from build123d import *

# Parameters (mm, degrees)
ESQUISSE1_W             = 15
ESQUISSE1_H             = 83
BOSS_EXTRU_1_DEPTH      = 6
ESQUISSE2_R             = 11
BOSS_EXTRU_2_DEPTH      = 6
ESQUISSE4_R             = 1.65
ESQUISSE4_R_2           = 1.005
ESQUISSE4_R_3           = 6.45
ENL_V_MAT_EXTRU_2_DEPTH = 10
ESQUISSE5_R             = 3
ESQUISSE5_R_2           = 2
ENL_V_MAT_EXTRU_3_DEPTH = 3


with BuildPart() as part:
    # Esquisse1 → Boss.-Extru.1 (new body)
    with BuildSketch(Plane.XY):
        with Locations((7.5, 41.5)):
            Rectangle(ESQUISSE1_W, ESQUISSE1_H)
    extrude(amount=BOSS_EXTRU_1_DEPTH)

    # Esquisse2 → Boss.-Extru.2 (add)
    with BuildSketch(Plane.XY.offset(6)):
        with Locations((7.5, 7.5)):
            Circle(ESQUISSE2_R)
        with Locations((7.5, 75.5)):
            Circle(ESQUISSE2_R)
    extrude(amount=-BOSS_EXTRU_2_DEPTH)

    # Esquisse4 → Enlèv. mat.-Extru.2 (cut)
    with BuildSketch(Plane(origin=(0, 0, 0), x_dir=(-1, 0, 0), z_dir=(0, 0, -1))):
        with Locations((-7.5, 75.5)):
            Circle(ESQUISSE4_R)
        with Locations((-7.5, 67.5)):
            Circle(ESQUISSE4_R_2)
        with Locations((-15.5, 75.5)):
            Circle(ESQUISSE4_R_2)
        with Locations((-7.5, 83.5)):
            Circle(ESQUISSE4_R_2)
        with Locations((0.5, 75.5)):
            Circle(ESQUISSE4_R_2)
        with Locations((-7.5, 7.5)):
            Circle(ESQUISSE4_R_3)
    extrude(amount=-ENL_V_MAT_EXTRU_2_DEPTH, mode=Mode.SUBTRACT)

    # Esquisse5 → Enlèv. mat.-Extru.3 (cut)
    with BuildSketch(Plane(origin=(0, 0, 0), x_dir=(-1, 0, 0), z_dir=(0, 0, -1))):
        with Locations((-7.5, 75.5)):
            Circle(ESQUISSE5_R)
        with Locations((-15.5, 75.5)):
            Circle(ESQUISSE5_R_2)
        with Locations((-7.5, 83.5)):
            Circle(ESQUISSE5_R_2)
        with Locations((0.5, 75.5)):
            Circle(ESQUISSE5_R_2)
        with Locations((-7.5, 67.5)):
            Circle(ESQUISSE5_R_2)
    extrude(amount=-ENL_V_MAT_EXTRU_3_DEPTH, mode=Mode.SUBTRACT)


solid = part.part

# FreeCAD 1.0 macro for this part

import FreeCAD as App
import Part
import Sketcher

V = App.Vector

doc = App.newDocument("Part")
body = doc.addObject("PartDesign::Body", "Body")

sketch1 = body.newObject("Sketcher::SketchObject", "Sketch")
sketch1.AttachmentSupport = (doc.getObject("XY_Plane"), [""])
sketch1.MapMode = "FlatFace"
sketch1.addGeometry([
    Part.LineSegment(V(0, 83, 0), V(0, 0, 0)),
    Part.LineSegment(V(0, 0, 0), V(15, 0, 0)),
    Part.LineSegment(V(15, 0, 0), V(15, 83, 0)),
    Part.LineSegment(V(15, 83, 0), V(0, 83, 0)),
], False)
sketch1.addConstraint([
    Sketcher.Constraint("Coincident", 0, 2, 1, 1),
    Sketcher.Constraint("Coincident", 1, 2, 2, 1),
    Sketcher.Constraint("Coincident", 2, 2, 3, 1),
    Sketcher.Constraint("Coincident", 3, 2, 0, 1),
    Sketcher.Constraint("Vertical", 0),
    Sketcher.Constraint("Horizontal", 1),
    Sketcher.Constraint("Vertical", 2),
    Sketcher.Constraint("Horizontal", 3),
    Sketcher.Constraint("Coincident", 0, 2, -1, 1),
    Sketcher.Constraint("DistanceX", 1, 1, 1, 2, 15.0),
    Sketcher.Constraint("DistanceY", 0, 2, 0, 1, 83.0),
])
pad1 = body.newObject("PartDesign::Pad", "Pad")
pad1.Profile = sketch1
pad1.Length = 6

sketch2 = body.newObject("Sketcher::SketchObject", "Sketch001")
sketch2.AttachmentSupport = (doc.getObject("XY_Plane"), [""])
sketch2.MapMode = "FlatFace"
sketch2.AttachmentOffset = App.Placement(V(0, 0, 6), App.Rotation())
sketch2.addGeometry([
    Part.Circle(V(7.5, 7.5, 0), V(0, 0, 1), 11),
    Part.Circle(V(7.5, 75.5, 0), V(0, 0, 1), 11),
], False)
sketch2.addConstraint([
    Sketcher.Constraint("Equal", 0, 1),
    Sketcher.Constraint("Vertical", 0, 3, 1, 3),
    Sketcher.Constraint("Diameter", 0, 22.0),
    Sketcher.Constraint("DistanceY", 0, 3, 1, 3, 68.0),
    Sketcher.Constraint("DistanceX", -1, 1, 0, 3, 7.5),
    Sketcher.Constraint("DistanceY", -1, 1, 0, 3, 7.5),
])
pad2 = body.newObject("PartDesign::Pad", "Pad001")
pad2.Profile = sketch2
pad2.Length = 6
pad2.Reversed = True

sketch3 = body.newObject("Sketcher::SketchObject", "Sketch002")
sketch3.AttachmentSupport = (doc.getObject("XY_Plane"), [""])
sketch3.MapMode = "FlatFace"
sketch3.addGeometry([
    Part.Circle(V(7.5, 75.5, 0), V(0, 0, 1), 1.65),
    Part.Circle(V(7.5, 67.5, 0), V(0, 0, 1), 1.005),
    Part.Circle(V(15.5, 75.5, 0), V(0, 0, 1), 1.005),
    Part.Circle(V(7.5, 83.5, 0), V(0, 0, 1), 1.005),
    Part.Circle(V(-0.5, 75.5, 0), V(0, 0, 1), 1.005),
    Part.Circle(V(7.5, 7.5, 0), V(0, 0, 1), 6.45),
], False)
sketch3.addConstraint([
    Sketcher.Constraint("Equal", 1, 2),
    Sketcher.Constraint("Equal", 2, 3),
    Sketcher.Constraint("Equal", 3, 4),
    Sketcher.Constraint("Horizontal", 0, 3, 2, 3),
    Sketcher.Constraint("Horizontal", 2, 3, 4, 3),
    Sketcher.Constraint("Vertical", 0, 3, 1, 3),
    Sketcher.Constraint("Vertical", 1, 3, 3, 3),
    Sketcher.Constraint("Vertical", 3, 3, 5, 3),
    Sketcher.Constraint("Diameter", 0, 3.3),
    Sketcher.Constraint("Diameter", 5, 12.9),
    Sketcher.Constraint("Diameter", 1, 2.01),
    Sketcher.Constraint("DistanceY", 1, 3, 0, 3, 8.0),
    Sketcher.Constraint("DistanceX", 0, 3, 2, 3, 8.0),
    Sketcher.Constraint("DistanceY", 0, 3, 3, 3, 8.0),
    Sketcher.Constraint("DistanceX", 4, 3, 0, 3, 8.0),
    Sketcher.Constraint("DistanceY", 5, 3, 1, 3, 60.0),
    Sketcher.Constraint("DistanceX", -1, 1, 0, 3, 7.5),
    Sketcher.Constraint("DistanceY", -1, 1, 0, 3, 75.5),
])
pocket1 = body.newObject("PartDesign::Pocket", "Pocket")
pocket1.Profile = sketch3
pocket1.Length = 10
pocket1.Reversed = True

sketch4 = body.newObject("Sketcher::SketchObject", "Sketch003")
sketch4.AttachmentSupport = (doc.getObject("XY_Plane"), [""])
sketch4.MapMode = "FlatFace"
sketch4.addGeometry([
    Part.Circle(V(7.5, 75.5, 0), V(0, 0, 1), 3),
    Part.Circle(V(15.5, 75.5, 0), V(0, 0, 1), 2),
    Part.Circle(V(7.5, 83.5, 0), V(0, 0, 1), 2),
    Part.Circle(V(-0.5, 75.5, 0), V(0, 0, 1), 2),
    Part.Circle(V(7.5, 67.5, 0), V(0, 0, 1), 2),
], False)
sketch4.addConstraint([
    Sketcher.Constraint("Equal", 1, 2),
    Sketcher.Constraint("Equal", 2, 3),
    Sketcher.Constraint("Equal", 3, 4),
    Sketcher.Constraint("Horizontal", 0, 3, 1, 3),
    Sketcher.Constraint("Horizontal", 1, 3, 3, 3),
    Sketcher.Constraint("Vertical", 0, 3, 2, 3),
    Sketcher.Constraint("Vertical", 2, 3, 4, 3),
    Sketcher.Constraint("Diameter", 0, 6.0),
    Sketcher.Constraint("Diameter", 1, 4.0),
    Sketcher.Constraint("DistanceX", 0, 3, 1, 3, 8.0),
    Sketcher.Constraint("DistanceY", 0, 3, 2, 3, 8.0),
    Sketcher.Constraint("DistanceX", 3, 3, 0, 3, 8.0),
    Sketcher.Constraint("DistanceY", 4, 3, 0, 3, 8.0),
    Sketcher.Constraint("DistanceX", -1, 1, 0, 3, 7.5),
    Sketcher.Constraint("DistanceY", -1, 1, 0, 3, 75.5),
])
pocket2 = body.newObject("PartDesign::Pocket", "Pocket001")
pocket2.Profile = sketch4
pocket2.Length = 3
pocket2.Reversed = True

doc.recompute()
